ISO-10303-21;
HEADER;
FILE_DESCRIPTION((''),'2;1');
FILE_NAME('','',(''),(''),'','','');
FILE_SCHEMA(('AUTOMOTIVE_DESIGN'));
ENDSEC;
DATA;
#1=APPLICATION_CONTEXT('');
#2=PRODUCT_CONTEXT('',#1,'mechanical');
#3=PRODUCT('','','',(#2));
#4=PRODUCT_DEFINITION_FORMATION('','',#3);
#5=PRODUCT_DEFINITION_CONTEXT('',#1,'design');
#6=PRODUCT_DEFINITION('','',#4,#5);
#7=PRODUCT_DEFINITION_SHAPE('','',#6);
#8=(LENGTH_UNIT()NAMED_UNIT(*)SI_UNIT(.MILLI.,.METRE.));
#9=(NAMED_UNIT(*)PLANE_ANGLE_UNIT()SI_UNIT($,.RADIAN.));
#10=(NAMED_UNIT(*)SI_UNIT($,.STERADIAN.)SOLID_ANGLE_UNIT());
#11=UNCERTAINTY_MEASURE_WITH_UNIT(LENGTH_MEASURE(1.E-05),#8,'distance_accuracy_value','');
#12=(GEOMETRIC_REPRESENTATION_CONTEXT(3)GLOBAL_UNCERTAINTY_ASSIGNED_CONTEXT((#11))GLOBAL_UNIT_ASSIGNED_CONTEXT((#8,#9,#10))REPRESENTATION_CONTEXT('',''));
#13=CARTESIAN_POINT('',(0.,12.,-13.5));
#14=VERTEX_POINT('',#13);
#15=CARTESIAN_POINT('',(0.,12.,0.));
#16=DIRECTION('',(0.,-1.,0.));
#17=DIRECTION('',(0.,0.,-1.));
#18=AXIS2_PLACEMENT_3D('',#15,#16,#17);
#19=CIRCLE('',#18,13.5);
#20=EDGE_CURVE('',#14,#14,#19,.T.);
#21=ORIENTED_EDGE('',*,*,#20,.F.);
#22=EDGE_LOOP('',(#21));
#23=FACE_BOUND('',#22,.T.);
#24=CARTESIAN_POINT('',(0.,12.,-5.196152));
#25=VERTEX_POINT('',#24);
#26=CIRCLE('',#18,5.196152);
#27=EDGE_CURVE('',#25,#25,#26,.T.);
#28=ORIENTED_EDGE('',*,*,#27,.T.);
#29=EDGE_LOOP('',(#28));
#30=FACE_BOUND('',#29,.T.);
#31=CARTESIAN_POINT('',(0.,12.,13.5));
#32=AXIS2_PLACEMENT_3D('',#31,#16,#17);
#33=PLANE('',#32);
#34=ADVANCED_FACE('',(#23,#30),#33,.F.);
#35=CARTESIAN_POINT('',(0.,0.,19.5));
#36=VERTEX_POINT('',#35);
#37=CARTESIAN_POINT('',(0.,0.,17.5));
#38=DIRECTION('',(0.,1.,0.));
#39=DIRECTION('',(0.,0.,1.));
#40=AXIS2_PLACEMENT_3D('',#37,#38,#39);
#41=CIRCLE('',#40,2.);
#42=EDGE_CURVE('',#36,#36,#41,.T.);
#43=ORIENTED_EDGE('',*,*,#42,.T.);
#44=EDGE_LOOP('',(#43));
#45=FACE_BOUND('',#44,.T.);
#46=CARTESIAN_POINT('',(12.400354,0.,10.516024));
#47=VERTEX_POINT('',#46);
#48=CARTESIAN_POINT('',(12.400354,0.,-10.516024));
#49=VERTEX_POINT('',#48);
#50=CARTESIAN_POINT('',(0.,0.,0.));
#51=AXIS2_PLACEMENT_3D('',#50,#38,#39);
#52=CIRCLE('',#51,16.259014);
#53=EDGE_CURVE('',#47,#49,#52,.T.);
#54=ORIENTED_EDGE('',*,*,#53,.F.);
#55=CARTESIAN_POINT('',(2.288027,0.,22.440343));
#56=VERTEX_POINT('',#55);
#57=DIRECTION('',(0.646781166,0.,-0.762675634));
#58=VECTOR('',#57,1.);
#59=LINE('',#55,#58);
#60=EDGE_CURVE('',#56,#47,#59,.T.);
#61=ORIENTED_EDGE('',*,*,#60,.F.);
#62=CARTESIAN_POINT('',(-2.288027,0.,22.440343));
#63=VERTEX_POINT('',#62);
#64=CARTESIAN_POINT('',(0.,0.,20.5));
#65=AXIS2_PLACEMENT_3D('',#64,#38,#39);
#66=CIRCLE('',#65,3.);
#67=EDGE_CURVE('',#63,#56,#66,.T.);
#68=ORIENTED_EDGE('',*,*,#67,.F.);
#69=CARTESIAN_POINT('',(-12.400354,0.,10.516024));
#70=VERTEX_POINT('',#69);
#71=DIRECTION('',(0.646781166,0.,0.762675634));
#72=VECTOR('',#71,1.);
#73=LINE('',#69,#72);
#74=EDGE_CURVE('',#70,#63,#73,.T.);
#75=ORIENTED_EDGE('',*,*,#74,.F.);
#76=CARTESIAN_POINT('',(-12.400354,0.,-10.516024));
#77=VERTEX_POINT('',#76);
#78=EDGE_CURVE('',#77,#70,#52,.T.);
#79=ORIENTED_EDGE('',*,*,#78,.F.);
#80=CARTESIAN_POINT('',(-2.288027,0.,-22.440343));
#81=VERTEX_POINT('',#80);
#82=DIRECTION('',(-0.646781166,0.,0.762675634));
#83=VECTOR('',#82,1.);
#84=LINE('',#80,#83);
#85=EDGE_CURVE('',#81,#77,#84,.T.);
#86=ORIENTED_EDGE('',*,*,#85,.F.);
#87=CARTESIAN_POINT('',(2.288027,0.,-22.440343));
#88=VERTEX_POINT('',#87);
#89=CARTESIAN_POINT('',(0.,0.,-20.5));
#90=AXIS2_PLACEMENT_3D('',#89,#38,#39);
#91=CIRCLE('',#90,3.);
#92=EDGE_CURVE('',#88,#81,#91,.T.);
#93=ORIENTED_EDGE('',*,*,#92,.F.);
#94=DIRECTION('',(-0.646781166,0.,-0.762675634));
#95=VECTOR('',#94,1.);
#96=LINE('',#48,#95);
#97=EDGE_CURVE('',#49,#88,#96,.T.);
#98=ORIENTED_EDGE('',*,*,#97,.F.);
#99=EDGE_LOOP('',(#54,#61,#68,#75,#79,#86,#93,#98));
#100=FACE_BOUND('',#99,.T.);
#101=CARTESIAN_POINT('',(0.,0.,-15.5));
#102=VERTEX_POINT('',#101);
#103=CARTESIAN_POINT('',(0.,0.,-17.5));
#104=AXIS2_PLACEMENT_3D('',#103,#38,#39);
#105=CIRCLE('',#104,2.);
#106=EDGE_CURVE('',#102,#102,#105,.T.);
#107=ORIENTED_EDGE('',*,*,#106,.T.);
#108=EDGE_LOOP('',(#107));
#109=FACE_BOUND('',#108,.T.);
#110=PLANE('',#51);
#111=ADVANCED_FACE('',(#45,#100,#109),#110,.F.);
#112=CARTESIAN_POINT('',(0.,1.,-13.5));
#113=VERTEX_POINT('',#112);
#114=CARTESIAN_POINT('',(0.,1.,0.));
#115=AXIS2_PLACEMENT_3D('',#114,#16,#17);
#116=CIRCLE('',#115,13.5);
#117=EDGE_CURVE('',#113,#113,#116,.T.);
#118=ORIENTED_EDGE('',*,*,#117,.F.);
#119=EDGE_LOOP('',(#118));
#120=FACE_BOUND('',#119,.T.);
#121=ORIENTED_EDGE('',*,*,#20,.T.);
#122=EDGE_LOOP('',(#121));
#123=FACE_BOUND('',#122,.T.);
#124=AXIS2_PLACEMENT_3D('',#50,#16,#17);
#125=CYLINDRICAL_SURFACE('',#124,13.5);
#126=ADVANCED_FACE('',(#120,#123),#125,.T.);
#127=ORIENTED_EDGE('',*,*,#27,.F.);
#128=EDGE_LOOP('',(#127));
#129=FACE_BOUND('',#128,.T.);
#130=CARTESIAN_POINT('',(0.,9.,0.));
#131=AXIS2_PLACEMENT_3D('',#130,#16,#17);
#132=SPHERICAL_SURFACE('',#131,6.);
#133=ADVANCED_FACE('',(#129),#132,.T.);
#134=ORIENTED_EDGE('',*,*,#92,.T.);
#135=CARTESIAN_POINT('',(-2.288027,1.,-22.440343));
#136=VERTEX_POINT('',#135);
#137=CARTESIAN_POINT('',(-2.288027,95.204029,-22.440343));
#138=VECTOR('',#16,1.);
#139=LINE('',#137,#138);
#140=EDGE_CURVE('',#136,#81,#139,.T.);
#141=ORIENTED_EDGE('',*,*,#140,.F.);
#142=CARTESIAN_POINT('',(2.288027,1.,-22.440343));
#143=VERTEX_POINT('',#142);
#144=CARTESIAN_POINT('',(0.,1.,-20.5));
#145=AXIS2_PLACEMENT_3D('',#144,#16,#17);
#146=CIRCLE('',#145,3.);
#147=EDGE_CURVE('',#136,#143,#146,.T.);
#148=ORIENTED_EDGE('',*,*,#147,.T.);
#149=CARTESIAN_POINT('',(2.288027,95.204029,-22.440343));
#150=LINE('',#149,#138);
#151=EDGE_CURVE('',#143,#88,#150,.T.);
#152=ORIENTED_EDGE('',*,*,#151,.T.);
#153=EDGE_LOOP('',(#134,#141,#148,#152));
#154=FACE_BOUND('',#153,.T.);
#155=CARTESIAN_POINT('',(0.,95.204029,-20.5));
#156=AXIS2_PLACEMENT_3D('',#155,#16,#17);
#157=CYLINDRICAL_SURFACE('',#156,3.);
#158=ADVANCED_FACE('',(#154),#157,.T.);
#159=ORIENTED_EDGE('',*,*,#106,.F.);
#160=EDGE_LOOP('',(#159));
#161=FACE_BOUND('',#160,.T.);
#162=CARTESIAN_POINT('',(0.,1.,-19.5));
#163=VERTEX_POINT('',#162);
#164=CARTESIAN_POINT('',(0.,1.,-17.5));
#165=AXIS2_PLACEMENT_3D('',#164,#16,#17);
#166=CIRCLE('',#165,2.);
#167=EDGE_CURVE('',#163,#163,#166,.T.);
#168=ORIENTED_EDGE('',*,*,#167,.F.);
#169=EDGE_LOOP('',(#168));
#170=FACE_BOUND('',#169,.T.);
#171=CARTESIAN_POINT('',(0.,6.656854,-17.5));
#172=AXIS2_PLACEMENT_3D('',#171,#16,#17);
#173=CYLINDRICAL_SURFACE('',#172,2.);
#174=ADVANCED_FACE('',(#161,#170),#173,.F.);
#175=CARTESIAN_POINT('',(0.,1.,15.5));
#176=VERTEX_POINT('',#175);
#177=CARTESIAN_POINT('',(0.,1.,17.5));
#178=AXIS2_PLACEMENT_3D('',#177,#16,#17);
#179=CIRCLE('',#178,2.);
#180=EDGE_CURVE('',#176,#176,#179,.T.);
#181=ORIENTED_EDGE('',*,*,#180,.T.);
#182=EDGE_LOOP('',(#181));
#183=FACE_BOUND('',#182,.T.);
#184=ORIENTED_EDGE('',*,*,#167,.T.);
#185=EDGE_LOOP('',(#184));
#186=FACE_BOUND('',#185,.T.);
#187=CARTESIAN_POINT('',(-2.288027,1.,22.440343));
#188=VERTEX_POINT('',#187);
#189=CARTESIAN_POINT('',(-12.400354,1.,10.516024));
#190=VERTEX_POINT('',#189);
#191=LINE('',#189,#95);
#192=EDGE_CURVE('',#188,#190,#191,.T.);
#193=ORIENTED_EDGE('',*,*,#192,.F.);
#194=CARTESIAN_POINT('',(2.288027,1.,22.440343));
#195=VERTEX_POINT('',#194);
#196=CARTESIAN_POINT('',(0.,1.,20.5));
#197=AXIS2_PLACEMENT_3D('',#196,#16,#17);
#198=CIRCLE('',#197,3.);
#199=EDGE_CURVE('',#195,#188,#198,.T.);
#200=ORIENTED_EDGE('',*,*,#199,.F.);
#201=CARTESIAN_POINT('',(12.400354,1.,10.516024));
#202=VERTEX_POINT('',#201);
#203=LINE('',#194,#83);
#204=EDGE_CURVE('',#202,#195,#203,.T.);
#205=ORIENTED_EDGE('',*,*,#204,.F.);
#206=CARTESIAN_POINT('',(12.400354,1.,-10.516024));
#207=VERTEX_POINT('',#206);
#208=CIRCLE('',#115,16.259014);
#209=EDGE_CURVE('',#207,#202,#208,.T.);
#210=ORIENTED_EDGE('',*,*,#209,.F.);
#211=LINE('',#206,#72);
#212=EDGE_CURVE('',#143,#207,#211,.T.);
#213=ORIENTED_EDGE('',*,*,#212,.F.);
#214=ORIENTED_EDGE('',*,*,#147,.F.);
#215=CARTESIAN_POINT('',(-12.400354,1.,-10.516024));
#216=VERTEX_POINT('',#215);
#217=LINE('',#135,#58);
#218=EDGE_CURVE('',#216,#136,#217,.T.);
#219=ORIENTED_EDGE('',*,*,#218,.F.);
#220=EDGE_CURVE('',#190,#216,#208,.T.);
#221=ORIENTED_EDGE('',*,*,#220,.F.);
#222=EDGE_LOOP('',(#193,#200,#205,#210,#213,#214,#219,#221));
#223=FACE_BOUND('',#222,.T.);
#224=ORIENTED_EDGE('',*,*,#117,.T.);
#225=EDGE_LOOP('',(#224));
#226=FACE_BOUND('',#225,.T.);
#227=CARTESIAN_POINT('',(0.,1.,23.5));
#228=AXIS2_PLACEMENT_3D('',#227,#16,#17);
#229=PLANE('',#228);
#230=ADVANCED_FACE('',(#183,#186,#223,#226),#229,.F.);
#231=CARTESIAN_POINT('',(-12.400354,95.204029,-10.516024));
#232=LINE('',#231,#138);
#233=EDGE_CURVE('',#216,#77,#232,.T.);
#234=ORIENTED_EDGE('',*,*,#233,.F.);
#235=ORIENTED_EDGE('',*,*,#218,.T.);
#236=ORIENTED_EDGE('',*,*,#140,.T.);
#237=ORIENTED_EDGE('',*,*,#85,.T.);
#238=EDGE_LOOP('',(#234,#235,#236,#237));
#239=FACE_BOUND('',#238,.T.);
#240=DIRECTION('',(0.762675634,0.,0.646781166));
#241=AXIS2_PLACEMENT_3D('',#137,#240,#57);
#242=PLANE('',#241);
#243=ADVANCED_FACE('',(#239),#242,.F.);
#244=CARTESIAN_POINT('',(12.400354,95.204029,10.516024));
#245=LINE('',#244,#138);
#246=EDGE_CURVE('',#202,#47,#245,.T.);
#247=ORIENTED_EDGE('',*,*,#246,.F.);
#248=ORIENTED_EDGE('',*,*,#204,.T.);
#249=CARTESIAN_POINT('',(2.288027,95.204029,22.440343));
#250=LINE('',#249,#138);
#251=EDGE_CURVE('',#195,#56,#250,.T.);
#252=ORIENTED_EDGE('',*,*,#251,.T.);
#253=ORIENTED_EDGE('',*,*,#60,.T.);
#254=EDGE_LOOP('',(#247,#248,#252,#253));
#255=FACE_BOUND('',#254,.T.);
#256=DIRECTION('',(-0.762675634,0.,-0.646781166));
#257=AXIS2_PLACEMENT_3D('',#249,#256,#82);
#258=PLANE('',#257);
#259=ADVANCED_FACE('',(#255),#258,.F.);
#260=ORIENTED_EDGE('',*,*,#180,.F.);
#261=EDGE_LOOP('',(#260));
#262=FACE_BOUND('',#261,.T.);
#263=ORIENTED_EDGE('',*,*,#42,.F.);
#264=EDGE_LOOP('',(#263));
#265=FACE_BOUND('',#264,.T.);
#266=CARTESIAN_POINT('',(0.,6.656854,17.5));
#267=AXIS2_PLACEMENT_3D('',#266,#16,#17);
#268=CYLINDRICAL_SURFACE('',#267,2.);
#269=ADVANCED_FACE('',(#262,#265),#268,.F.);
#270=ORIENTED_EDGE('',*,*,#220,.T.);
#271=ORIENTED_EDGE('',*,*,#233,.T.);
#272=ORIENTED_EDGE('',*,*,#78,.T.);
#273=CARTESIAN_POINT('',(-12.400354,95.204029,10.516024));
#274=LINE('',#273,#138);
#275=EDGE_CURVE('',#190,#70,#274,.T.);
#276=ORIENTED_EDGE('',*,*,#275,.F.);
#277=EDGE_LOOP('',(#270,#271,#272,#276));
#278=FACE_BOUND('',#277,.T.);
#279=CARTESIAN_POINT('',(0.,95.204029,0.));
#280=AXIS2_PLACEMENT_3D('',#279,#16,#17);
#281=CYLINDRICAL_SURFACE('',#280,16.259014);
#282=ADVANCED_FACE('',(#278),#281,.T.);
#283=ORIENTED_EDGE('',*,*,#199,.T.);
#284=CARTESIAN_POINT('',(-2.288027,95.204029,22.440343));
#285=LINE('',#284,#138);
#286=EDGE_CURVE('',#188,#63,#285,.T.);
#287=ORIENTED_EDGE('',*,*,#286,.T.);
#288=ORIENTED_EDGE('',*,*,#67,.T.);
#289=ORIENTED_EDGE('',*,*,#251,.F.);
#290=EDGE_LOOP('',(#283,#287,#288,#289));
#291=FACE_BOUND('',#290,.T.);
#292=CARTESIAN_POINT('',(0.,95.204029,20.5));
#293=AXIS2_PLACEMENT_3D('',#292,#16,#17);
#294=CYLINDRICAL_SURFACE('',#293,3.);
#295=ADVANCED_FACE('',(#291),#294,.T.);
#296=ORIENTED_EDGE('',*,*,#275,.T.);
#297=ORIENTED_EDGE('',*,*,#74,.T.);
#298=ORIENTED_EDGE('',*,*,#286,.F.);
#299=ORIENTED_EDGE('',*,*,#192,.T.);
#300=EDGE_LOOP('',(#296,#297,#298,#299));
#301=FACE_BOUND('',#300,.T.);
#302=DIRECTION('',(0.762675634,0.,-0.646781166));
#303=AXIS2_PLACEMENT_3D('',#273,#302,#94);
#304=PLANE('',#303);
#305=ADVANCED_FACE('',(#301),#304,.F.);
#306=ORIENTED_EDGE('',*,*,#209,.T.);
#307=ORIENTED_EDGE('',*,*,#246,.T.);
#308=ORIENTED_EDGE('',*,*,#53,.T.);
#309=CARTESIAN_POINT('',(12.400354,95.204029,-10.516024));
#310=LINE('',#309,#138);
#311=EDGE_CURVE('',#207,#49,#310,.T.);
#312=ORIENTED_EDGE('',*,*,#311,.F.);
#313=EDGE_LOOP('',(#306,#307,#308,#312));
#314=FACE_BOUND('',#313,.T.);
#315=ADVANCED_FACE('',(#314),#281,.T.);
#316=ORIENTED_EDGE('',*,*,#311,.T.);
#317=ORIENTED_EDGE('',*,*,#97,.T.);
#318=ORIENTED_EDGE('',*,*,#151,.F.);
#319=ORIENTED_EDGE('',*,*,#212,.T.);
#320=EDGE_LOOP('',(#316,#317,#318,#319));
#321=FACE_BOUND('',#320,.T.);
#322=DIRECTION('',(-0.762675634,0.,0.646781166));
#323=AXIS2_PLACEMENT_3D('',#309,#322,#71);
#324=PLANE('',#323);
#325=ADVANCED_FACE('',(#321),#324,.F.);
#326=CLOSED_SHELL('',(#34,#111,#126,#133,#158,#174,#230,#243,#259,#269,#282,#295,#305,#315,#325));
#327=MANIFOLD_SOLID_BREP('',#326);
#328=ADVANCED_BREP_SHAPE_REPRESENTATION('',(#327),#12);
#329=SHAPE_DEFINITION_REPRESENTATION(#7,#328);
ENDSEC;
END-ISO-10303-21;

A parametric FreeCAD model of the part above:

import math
import FreeCAD as App
import Part
import Sketcher

doc = App.newDocument("Part")
body = doc.addObject("PartDesign::Body", "Body")

sketch1 = body.newObject("Sketcher::SketchObject", "Sketch")
sketch1.AttachmentSupport = (doc.getObject("YZ_Plane"), [""])
sketch1.MapMode = "FlatFace"
sketch1.addGeometry(Part.LineSegment(App.Vector(0, 23.5, 0), App.Vector(0, 0, 0)), False)
sketch1.addGeometry(Part.LineSegment(App.Vector(0, 0, 0), App.Vector(15, 0, 0)), False)
sketch1.addGeometry(Part.ArcOfCircle(Part.Circle(App.Vector(9, 0, 0), App.Vector(0, 0, 1), 6), math.radians(0), math.radians(60)), False)
sketch1.addGeometry(Part.LineSegment(App.Vector(12, 5.196152, 0), App.Vector(12, 13.5, 0)), False)
sketch1.addGeometry(Part.LineSegment(App.Vector(12, 13.5, 0), App.Vector(1, 13.5, 0)), False)
sketch1.addGeometry(Part.LineSegment(App.Vector(1, 13.5, 0), App.Vector(1, 23.5, 0)), False)
sketch1.addGeometry(Part.LineSegment(App.Vector(1, 23.5, 0), App.Vector(0, 23.5, 0)), False)
sketch1.addConstraint(Sketcher.Constraint("Coincident", 0, 2, 1, 1))
sketch1.addConstraint(Sketcher.Constraint("Coincident", 1, 2, 2, 1))
sketch1.addConstraint(Sketcher.Constraint("Coincident", 2, 2, 3, 1))
sketch1.addConstraint(Sketcher.Constraint("Coincident", 3, 2, 4, 1))
sketch1.addConstraint(Sketcher.Constraint("Coincident", 4, 2, 5, 1))
sketch1.addConstraint(Sketcher.Constraint("Coincident", 5, 2, 6, 1))
sketch1.addConstraint(Sketcher.Constraint("Coincident", 6, 2, 0, 1))
sketch1.addConstraint(Sketcher.Constraint("Vertical", 0))
sketch1.addConstraint(Sketcher.Constraint("Horizontal", 1))
sketch1.addConstraint(Sketcher.Constraint("Vertical", 3))
sketch1.addConstraint(Sketcher.Constraint("Horizontal", 4))
sketch1.addConstraint(Sketcher.Constraint("Vertical", 5))
sketch1.addConstraint(Sketcher.Constraint("Horizontal", 6))
sketch1.addConstraint(Sketcher.Constraint("Coincident", 0, 2, -1, 1))
sketch1.addConstraint(Sketcher.Constraint("PointOnObject", 2, 3, -1))
sketch1.addConstraint(Sketcher.Constraint("Radius", 2, 6.0))
sketch1.addConstraint(Sketcher.Constraint("DistanceX", 1, 1, 1, 2, 15.0))
sketch1.addConstraint(Sketcher.Constraint("DistanceX", 4, 2, 4, 1, 11.0))
sketch1.addConstraint(Sketcher.Constraint("DistanceX", 6, 2, 6, 1, 1.0))
sketch1.addConstraint(Sketcher.Constraint("DistanceY", 5, 1, 5, 2, 10.0))
sketch1.addConstraint(Sketcher.Constraint("DistanceY", 0, 2, 0, 1, 23.5))
revolution = body.newObject("PartDesign::Revolution", "Revolution")
revolution.Profile = sketch1
revolution.ReferenceAxis = (sketch1, ["H_Axis"])
revolution.Angle = 360

sketch2 = body.newObject("Sketcher::SketchObject", "Sketch001")
sketch2.AttachmentSupport = (doc.getObject("XZ_Plane"), [""])
sketch2.MapMode = "FlatFace"
sketch2.addGeometry(Part.Circle(App.Vector(0, -17.5, 0), App.Vector(0, 0, 1), 2), False)
sketch2.addGeometry(Part.Circle(App.Vector(0, 17.5, 0), App.Vector(0, 0, 1), 2), False)
sketch2.addConstraint(Sketcher.Constraint("Equal", 0, 1))
sketch2.addConstraint(Sketcher.Constraint("Symmetric", 0, 3, 1, 3, -1, 1))
sketch2.addConstraint(Sketcher.Constraint("PointOnObject", 0, 3, -2))
sketch2.addConstraint(Sketcher.Constraint("Diameter", 0, 4.0))
sketch2.addConstraint(Sketcher.Constraint("DistanceY", 0, 3, 1, 3, 35.0))
pocket1 = body.newObject("PartDesign::Pocket", "Pocket")
pocket1.Profile = sketch2
pocket1.Length = 1

sketch3 = body.newObject("Sketcher::SketchObject", "Sketch002")
sketch3.AttachmentSupport = (doc.getObject("XZ_Plane"), [""])
sketch3.MapMode = "FlatFace"
sketch3.addGeometry(Part.Circle(App.Vector(0, 0, 0), App.Vector(0, 0, 1), 33.306154), False)
sketch3.addGeometry(Part.LineSegment(App.Vector(12.400354, 10.516024, 0), App.Vector(2.288027, 22.440343, 0)), False)
sketch3.addGeometry(Part.ArcOfCircle(Part.Circle(App.Vector(0, 20.5, 0), App.Vector(0, 0, 1), 3), math.radians(40.299353), math.radians(139.700647)), False)
sketch3.addGeometry(Part.LineSegment(App.Vector(-2.288027, 22.440343, 0), App.Vector(-12.400354, 10.516024, 0)), False)
sketch3.addGeometry(Part.ArcOfCircle(Part.Circle(App.Vector(0, 0, 0), App.Vector(0, 0, 1), 16.259014), math.radians(139.700647), math.radians(220.299353)), False)
sketch3.addGeometry(Part.LineSegment(App.Vector(-12.400354, -10.516024, 0), App.Vector(-2.288027, -22.440343, 0)), False)
sketch3.addGeometry(Part.ArcOfCircle(Part.Circle(App.Vector(0, -20.5, 0), App.Vector(0, 0, 1), 3), math.radians(-139.700647), math.radians(-40.299353)), False)
sketch3.addGeometry(Part.LineSegment(App.Vector(2.288027, -22.440343, 0), App.Vector(12.400354, -10.516024, 0)), False)
sketch3.addGeometry(Part.ArcOfCircle(Part.Circle(App.Vector(0, 0, 0), App.Vector(0, 0, 1), 16.259014), math.radians(-40.299353), math.radians(40.299353)), False)
sketch3.addConstraint(Sketcher.Constraint("Tangent", 1, 2, 2, 1))
sketch3.addConstraint(Sketcher.Constraint("Tangent", 2, 2, 3, 1))
sketch3.addConstraint(Sketcher.Constraint("Tangent", 3, 2, 4, 1))
sketch3.addConstraint(Sketcher.Constraint("Tangent", 4, 2, 5, 1))
sketch3.addConstraint(Sketcher.Constraint("Tangent", 5, 2, 6, 1))
sketch3.addConstraint(Sketcher.Constraint("Tangent", 6, 2, 7, 1))
sketch3.addConstraint(Sketcher.Constraint("Tangent", 7, 2, 8, 1))
sketch3.addConstraint(Sketcher.Constraint("Tangent", 8, 2, 1, 1))
sketch3.addConstraint(Sketcher.Constraint("Coincident", 0, 3, -1, 1))
sketch3.addConstraint(Sketcher.Constraint("Coincident", 4, 3, -1, 1))
sketch3.addConstraint(Sketcher.Constraint("Coincident", 8, 3, -1, 1))
sketch3.addConstraint(Sketcher.Constraint("Equal", 2, 6))
sketch3.addConstraint(Sketcher.Constraint("Equal", 4, 8))
sketch3.addConstraint(Sketcher.Constraint("Symmetric", 2, 3, 6, 3, -1, 1))
sketch3.addConstraint(Sketcher.Constraint("PointOnObject", 2, 3, -2))
sketch3.addConstraint(Sketcher.Constraint("Radius", 2, 3.0))
sketch3.addConstraint(Sketcher.Constraint("DistanceY", 6, 3, 2, 3, 41.0))
sketch3.addConstraint(Sketcher.Constraint("Diameter", 0, 66.612308))
sketch3.addConstraint(Sketcher.Constraint("Radius", 4, 16.259014))
pocket2 = body.newObject("PartDesign::Pocket", "Pocket001")
pocket2.Profile = sketch3
pocket2.Length = 1

doc.recompute()
